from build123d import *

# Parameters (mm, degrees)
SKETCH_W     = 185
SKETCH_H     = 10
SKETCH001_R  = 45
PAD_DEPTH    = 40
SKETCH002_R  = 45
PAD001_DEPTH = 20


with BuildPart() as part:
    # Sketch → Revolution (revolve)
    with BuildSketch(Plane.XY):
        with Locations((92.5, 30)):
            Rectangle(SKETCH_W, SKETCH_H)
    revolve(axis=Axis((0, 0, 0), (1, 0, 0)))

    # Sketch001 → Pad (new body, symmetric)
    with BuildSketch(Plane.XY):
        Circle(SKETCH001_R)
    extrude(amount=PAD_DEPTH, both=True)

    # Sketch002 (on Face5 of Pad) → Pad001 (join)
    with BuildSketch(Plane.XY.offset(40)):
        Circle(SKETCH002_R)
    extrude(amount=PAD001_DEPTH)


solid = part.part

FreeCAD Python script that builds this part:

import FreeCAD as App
import Part
import Sketcher
from FreeCAD import Vector

doc = App.newDocument("Part")
body = doc.addObject("PartDesign::Body", "Body")

# Sketch on XY plane
sketch1 = body.newObject("Sketcher::SketchObject", "Sketch")
sketch1.AttachmentSupport = (doc.getObject("XY_Plane"), [""])
sketch1.MapMode = "FlatFace"
sketch1.addGeometry([
    Part.LineSegment(Vector(0, 35, 0), Vector(0, 25, 0)),
    Part.LineSegment(Vector(0, 25, 0), Vector(185, 25, 0)),
    Part.LineSegment(Vector(185, 25, 0), Vector(185, 35, 0)),
    Part.LineSegment(Vector(185, 35, 0), Vector(0, 35, 0)),
], False)
sketch1.addConstraint([
    Sketcher.Constraint("Coincident", 0, 2, 1, 1),
    Sketcher.Constraint("Coincident", 1, 2, 2, 1),
    Sketcher.Constraint("Coincident", 2, 2, 3, 1),
    Sketcher.Constraint("Coincident", 3, 2, 0, 1),
    Sketcher.Constraint("Vertical", 0),
    Sketcher.Constraint("Horizontal", 1),
    Sketcher.Constraint("Vertical", 2),
    Sketcher.Constraint("Horizontal", 3),
    Sketcher.Constraint("PointOnObject", 0, 2, -2),
    Sketcher.Constraint("DistanceX", 1, 1, 1, 2, 185.0),
    Sketcher.Constraint("DistanceY", 0, 2, 0, 1, 10.0),
    Sketcher.Constraint("DistanceY", -1, 1, 0, 2, 25.0),
])
revolution = body.newObject("PartDesign::Revolution", "Revolution")
revolution.Profile = sketch1
revolution.ReferenceAxis = (sketch1, ["H_Axis"])
revolution.Angle = 360

# Sketch on XY plane
sketch2 = body.newObject("Sketcher::SketchObject", "Sketch001")
sketch2.AttachmentSupport = (doc.getObject("XY_Plane"), [""])
sketch2.MapMode = "FlatFace"
sketch2.addGeometry(Part.Circle(Vector(0, 0, 0), Vector(0, 0, 1), 45), False)
sketch2.addConstraint([
    Sketcher.Constraint("Coincident", 0, 3, -1, 1),
    Sketcher.Constraint("Diameter", 0, 90.0),
])
pad1 = body.newObject("PartDesign::Pad", "Pad")
pad1.Profile = sketch2
pad1.Length = 80
pad1.Midplane = True

# Sketch on XY plane
sketch3 = body.newObject("Sketcher::SketchObject", "Sketch002")
sketch3.AttachmentSupport = (doc.getObject("XY_Plane"), [""])
sketch3.MapMode = "FlatFace"
sketch3.AttachmentOffset = App.Placement(Vector(0, 0, 40), App.Rotation())
sketch3.addGeometry(Part.Circle(Vector(0, 0, 0), Vector(0, 0, 1), 45), False)
sketch3.addConstraint([
    Sketcher.Constraint("Coincident", 0, 3, -1, 1),
    Sketcher.Constraint("Diameter", 0, 90.0),
])
pad2 = body.newObject("PartDesign::Pad", "Pad001")
pad2.Profile = sketch3
pad2.Length = 20

doc.recompute()
